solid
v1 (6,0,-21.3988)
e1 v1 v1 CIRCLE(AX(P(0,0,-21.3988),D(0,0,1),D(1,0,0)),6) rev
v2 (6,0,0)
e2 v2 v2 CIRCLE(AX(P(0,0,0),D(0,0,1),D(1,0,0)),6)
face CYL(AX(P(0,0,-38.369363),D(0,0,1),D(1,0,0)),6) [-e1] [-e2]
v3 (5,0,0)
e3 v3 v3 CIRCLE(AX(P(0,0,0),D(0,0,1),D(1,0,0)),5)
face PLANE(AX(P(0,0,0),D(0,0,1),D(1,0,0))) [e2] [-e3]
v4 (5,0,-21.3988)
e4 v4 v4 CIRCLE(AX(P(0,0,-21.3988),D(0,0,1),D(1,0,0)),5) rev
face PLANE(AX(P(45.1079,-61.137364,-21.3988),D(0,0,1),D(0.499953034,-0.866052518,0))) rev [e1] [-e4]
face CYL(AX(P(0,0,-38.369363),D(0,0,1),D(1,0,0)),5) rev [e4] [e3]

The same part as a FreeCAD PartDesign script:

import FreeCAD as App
import Part
import Sketcher
from FreeCAD import Vector
Q = App.Units.Quantity

doc = App.newDocument("Part")
body = doc.addObject("PartDesign::Body", "Body")

# Sketch on XY plane
sketch1 = doc.addObject("Sketcher::SketchObject", "Sketch")
body.addObject(sketch1)
sketch1.AttachmentSupport = (doc.XY_Plane, [""])
sketch1.MapMode = "FlatFace"
sketch1.addGeometry([
    Part.Circle(Vector(0, 0, 0), Vector(0, 0, 1), 6),
    Part.Circle(Vector(0, 0, 0), Vector(0, 0, 1), 5),
], False)
sketch1.addConstraint([
    Sketcher.Constraint("Coincident", 0, 3, -1, 1),
    Sketcher.Constraint("Coincident", 1, 3, -1, 1),
    Sketcher.Constraint("Diameter", 0, Q("12 mm")),
    Sketcher.Constraint("Diameter", 1, Q("10 mm")),
])
pad1 = doc.addObject("PartDesign::Pad", "Pad")
body.addObject(pad1)
pad1.Profile = sketch1
pad1.Length = 21.3988
pad1.Reversed = True

doc.recompute()
